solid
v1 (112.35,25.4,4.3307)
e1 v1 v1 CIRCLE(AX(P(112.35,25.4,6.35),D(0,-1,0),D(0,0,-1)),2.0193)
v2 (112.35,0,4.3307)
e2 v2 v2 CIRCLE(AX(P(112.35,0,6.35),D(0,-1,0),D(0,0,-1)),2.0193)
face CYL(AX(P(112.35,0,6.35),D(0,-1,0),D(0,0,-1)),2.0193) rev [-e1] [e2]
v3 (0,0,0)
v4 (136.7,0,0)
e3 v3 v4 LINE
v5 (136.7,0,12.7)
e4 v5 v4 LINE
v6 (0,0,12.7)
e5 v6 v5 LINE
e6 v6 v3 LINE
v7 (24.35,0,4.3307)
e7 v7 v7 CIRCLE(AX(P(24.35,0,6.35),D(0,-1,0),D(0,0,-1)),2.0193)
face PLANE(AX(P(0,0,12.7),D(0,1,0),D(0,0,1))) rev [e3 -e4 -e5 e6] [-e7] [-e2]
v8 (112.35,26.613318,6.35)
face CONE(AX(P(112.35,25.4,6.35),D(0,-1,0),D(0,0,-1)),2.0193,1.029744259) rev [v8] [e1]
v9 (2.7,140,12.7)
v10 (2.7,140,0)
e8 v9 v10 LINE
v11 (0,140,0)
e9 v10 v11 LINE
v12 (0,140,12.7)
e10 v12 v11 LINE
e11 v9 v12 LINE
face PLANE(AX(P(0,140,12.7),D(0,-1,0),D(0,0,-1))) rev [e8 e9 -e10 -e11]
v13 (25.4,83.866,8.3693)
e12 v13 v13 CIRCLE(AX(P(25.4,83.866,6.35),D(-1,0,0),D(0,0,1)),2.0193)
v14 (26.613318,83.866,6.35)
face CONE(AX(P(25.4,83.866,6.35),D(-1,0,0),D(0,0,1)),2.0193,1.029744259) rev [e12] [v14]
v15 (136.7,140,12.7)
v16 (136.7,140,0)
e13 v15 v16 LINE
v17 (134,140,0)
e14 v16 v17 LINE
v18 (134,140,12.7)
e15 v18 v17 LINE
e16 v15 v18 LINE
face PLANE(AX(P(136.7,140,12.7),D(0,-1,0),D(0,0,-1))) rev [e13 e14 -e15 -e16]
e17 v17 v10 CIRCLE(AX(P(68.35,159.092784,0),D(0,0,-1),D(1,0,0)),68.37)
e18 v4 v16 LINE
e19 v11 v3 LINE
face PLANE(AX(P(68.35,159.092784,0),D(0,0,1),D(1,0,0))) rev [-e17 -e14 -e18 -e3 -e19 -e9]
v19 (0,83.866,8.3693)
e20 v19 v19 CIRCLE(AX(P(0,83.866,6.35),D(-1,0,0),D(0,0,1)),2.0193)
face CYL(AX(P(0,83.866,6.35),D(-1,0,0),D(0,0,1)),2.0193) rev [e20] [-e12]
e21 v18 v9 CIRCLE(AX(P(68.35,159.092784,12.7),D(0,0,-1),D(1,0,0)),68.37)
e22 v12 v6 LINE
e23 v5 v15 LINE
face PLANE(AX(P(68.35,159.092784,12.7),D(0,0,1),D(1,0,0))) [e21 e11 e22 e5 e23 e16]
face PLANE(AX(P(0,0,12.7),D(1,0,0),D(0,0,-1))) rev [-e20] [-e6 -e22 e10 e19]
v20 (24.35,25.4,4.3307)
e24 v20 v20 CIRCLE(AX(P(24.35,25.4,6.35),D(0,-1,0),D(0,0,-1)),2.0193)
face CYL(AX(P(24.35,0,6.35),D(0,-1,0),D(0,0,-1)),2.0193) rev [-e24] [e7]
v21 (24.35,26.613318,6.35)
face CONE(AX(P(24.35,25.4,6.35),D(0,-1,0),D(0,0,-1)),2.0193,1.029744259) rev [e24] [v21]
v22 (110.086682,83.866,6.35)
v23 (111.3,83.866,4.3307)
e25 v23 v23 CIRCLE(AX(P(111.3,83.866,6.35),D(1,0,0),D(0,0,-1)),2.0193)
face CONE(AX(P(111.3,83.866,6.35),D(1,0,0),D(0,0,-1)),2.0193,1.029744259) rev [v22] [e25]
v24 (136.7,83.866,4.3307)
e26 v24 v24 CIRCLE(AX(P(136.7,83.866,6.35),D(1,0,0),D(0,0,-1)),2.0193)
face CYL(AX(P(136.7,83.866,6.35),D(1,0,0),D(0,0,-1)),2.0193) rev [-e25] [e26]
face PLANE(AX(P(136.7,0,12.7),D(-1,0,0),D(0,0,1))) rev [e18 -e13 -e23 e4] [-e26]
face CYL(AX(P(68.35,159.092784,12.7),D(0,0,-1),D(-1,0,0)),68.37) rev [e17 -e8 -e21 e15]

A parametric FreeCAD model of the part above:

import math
import FreeCAD as App
import Part
import Sketcher
Q = App.Units.Quantity


def add_polygon(sketch, points):
    """Adds a closed chain of lines whose ends are joined by coincident constraints."""
    first, n = sketch.GeometryCount, len(points)
    for a, b in zip(points, points[1:] + points[:1]):
        sketch.addGeometry(Part.LineSegment(App.Vector(*a, 0), App.Vector(*b, 0)), False)
    for i in range(n):
        sketch.addConstraint(Sketcher.Constraint("Coincident", first + i, 2, first + (i + 1) % n, 1))

doc = App.newDocument("Part")
body = doc.addObject("PartDesign::Body", "Body")

sketch1 = body.newObject("Sketcher::SketchObject", "Sketch")
sketch1.AttachmentSupport = (doc.getObject("XY_Plane"), [""])
sketch1.MapMode = "FlatFace"
sketch1.addGeometry([
    Part.LineSegment(App.Vector(0, 140, 0), App.Vector(0, 0, 0)),
    Part.LineSegment(App.Vector(0, 0, 0), App.Vector(136.7, 0, 0)),
    Part.LineSegment(App.Vector(136.7, 0, 0), App.Vector(136.7, 140, 0)),
    Part.LineSegment(App.Vector(136.7, 140, 0), App.Vector(134, 140, 0)),
    Part.ArcOfCircle(Part.Circle(App.Vector(68.3, 159.1, 0), App.Vector(0, 0, 1), 68.4), math.radians(-164), math.radians(-16)),
    Part.LineSegment(App.Vector(2.7, 140, 0), App.Vector(0, 140, 0)),
], False)
sketch1.addConstraint([
    Sketcher.Constraint("Coincident", 0, 2, 1, 1),
    Sketcher.Constraint("Coincident", 1, 2, 2, 1),
    Sketcher.Constraint("Coincident", 2, 2, 3, 1),
    Sketcher.Constraint("Coincident", 3, 2, 4, 2),
    Sketcher.Constraint("Coincident", 4, 1, 5, 1),
    Sketcher.Constraint("Coincident", 5, 2, 0, 1),
    Sketcher.Constraint("Vertical", 0),
    Sketcher.Constraint("Horizontal", 1),
    Sketcher.Constraint("Vertical", 2),
    Sketcher.Constraint("Horizontal", 3),
    Sketcher.Constraint("Horizontal", 5),
    Sketcher.Constraint("Coincident", 0, 2, -1, 1),
    Sketcher.Constraint("Horizontal", 3, 2, 4, 1),
    Sketcher.Constraint("Equal", 3, 5),
    Sketcher.Constraint("DistanceY", 0, 2, 0, 1, Q("140 mm")),
    Sketcher.Constraint("Radius", 4, Q("68.37 mm")),
    Sketcher.Constraint("DistanceX", 1, 1, 1, 2, Q("136.7 mm")),
    Sketcher.Constraint("DistanceX", 3, 2, 3, 1, Q("2.7 mm")),
])
pad1 = body.newObject("PartDesign::Pad", "Pad")
pad1.Profile = sketch1
pad1.Length = 12.7

sketch2 = body.newObject("Sketcher::SketchObject", "Sketch001")
sketch2.AttachmentSupport = (doc.getObject("XZ_Plane"), [""])
sketch2.MapMode = "FlatFace"
sketch2.AttachmentOffset = App.Placement(App.Vector(0, 0, -83.866), App.Rotation())
add_polygon(sketch2, [(110.1, 6.3), (136.7, 6.3), (136.7, 4.3), (111.3, 4.3)])
sketch2.addGeometry(Part.LineSegment(App.Vector(136.7, 6.3, 0), App.Vector(110.1, 6.3, 0)), True)
sketch2.addConstraint([
    Sketcher.Constraint("Horizontal", 0),
    Sketcher.Constraint("Vertical", 1),
    Sketcher.Constraint("Horizontal", 2),
    Sketcher.Constraint("Horizontal", 4),
    Sketcher.Constraint("Coincident", 4, 1, 0, 2),
    Sketcher.Constraint("Equal", 0, 4),
    Sketcher.Constraint("Angle", 3, Q("121 deg")),
    Sketcher.Constraint("DistanceX", 2, 2, 2, 1, Q("25.4 mm")),
    Sketcher.Constraint("DistanceX", -1, 1, 0, 2, Q("136.7 mm")),
    Sketcher.Constraint("DistanceY", -1, 1, 0, 2, Q("6.35 mm")),
    Sketcher.Constraint("DistanceY", 1, 2, 1, 1, Q("2.0193 mm")),
])
groove = body.newObject("PartDesign::Groove", "Groove")
groove.Profile = sketch2
groove.ReferenceAxis = (sketch2, ["Axis0"])
groove.Angle = 360
doc.recompute()

datumplane = body.newObject("PartDesign::Plane", "DatumPlane")
datumplane.AttachmentSupport = (doc.getObject("YZ_Plane"), [""])
datumplane.MapMode = "FlatFace"
datumplane.AttachmentOffset = App.Placement(App.Vector(0, 0, 68.35), App.Rotation())
mirrored = body.newObject("PartDesign::Mirrored", "Mirrored")
mirrored.Originals = [groove]
mirrored.MirrorPlane = (datumplane, [""])
body.Tip = mirrored

sketch3 = body.newObject("Sketcher::SketchObject", "Sketch002")
sketch3.AttachmentSupport = (doc.getObject("XZ_Plane"), [""])
sketch3.MapMode = "FlatFace"
sketch3.addGeometry([
    Part.Circle(App.Vector(112.3, 6.3, 0), App.Vector(0, 0, 1), 2),
    Part.Circle(App.Vector(24.4, 6.3, 0), App.Vector(0, 0, 1), 2),
], False)
sketch3.addConstraint([
    Sketcher.Constraint("Equal", 0, 1),
    Sketcher.Constraint("Horizontal", 0, 3, 1, 3),
    Sketcher.Constraint("DistanceX", 1, 3, 0, 3, Q("88 mm")),
    Sketcher.Constraint("Diameter", 0, Q("4.0386 mm")),
    Sketcher.Constraint("DistanceX", -1, 1, 0, 3, Q("112.35 mm")),
    Sketcher.Constraint("DistanceY", -1, 1, 0, 3, Q("6.35 mm")),
])
doc.recompute()
hole = body.newObject("PartDesign::Hole", "Hole")
hole.Profile = sketch3
hole.ThreadType = "None"
hole.Diameter = 4.0386
hole.DepthType = "Dimension"
hole.Depth = 25.4
hole.DrillPoint = "Angled"
hole.DrillPointAngle = 118

doc.recompute()
